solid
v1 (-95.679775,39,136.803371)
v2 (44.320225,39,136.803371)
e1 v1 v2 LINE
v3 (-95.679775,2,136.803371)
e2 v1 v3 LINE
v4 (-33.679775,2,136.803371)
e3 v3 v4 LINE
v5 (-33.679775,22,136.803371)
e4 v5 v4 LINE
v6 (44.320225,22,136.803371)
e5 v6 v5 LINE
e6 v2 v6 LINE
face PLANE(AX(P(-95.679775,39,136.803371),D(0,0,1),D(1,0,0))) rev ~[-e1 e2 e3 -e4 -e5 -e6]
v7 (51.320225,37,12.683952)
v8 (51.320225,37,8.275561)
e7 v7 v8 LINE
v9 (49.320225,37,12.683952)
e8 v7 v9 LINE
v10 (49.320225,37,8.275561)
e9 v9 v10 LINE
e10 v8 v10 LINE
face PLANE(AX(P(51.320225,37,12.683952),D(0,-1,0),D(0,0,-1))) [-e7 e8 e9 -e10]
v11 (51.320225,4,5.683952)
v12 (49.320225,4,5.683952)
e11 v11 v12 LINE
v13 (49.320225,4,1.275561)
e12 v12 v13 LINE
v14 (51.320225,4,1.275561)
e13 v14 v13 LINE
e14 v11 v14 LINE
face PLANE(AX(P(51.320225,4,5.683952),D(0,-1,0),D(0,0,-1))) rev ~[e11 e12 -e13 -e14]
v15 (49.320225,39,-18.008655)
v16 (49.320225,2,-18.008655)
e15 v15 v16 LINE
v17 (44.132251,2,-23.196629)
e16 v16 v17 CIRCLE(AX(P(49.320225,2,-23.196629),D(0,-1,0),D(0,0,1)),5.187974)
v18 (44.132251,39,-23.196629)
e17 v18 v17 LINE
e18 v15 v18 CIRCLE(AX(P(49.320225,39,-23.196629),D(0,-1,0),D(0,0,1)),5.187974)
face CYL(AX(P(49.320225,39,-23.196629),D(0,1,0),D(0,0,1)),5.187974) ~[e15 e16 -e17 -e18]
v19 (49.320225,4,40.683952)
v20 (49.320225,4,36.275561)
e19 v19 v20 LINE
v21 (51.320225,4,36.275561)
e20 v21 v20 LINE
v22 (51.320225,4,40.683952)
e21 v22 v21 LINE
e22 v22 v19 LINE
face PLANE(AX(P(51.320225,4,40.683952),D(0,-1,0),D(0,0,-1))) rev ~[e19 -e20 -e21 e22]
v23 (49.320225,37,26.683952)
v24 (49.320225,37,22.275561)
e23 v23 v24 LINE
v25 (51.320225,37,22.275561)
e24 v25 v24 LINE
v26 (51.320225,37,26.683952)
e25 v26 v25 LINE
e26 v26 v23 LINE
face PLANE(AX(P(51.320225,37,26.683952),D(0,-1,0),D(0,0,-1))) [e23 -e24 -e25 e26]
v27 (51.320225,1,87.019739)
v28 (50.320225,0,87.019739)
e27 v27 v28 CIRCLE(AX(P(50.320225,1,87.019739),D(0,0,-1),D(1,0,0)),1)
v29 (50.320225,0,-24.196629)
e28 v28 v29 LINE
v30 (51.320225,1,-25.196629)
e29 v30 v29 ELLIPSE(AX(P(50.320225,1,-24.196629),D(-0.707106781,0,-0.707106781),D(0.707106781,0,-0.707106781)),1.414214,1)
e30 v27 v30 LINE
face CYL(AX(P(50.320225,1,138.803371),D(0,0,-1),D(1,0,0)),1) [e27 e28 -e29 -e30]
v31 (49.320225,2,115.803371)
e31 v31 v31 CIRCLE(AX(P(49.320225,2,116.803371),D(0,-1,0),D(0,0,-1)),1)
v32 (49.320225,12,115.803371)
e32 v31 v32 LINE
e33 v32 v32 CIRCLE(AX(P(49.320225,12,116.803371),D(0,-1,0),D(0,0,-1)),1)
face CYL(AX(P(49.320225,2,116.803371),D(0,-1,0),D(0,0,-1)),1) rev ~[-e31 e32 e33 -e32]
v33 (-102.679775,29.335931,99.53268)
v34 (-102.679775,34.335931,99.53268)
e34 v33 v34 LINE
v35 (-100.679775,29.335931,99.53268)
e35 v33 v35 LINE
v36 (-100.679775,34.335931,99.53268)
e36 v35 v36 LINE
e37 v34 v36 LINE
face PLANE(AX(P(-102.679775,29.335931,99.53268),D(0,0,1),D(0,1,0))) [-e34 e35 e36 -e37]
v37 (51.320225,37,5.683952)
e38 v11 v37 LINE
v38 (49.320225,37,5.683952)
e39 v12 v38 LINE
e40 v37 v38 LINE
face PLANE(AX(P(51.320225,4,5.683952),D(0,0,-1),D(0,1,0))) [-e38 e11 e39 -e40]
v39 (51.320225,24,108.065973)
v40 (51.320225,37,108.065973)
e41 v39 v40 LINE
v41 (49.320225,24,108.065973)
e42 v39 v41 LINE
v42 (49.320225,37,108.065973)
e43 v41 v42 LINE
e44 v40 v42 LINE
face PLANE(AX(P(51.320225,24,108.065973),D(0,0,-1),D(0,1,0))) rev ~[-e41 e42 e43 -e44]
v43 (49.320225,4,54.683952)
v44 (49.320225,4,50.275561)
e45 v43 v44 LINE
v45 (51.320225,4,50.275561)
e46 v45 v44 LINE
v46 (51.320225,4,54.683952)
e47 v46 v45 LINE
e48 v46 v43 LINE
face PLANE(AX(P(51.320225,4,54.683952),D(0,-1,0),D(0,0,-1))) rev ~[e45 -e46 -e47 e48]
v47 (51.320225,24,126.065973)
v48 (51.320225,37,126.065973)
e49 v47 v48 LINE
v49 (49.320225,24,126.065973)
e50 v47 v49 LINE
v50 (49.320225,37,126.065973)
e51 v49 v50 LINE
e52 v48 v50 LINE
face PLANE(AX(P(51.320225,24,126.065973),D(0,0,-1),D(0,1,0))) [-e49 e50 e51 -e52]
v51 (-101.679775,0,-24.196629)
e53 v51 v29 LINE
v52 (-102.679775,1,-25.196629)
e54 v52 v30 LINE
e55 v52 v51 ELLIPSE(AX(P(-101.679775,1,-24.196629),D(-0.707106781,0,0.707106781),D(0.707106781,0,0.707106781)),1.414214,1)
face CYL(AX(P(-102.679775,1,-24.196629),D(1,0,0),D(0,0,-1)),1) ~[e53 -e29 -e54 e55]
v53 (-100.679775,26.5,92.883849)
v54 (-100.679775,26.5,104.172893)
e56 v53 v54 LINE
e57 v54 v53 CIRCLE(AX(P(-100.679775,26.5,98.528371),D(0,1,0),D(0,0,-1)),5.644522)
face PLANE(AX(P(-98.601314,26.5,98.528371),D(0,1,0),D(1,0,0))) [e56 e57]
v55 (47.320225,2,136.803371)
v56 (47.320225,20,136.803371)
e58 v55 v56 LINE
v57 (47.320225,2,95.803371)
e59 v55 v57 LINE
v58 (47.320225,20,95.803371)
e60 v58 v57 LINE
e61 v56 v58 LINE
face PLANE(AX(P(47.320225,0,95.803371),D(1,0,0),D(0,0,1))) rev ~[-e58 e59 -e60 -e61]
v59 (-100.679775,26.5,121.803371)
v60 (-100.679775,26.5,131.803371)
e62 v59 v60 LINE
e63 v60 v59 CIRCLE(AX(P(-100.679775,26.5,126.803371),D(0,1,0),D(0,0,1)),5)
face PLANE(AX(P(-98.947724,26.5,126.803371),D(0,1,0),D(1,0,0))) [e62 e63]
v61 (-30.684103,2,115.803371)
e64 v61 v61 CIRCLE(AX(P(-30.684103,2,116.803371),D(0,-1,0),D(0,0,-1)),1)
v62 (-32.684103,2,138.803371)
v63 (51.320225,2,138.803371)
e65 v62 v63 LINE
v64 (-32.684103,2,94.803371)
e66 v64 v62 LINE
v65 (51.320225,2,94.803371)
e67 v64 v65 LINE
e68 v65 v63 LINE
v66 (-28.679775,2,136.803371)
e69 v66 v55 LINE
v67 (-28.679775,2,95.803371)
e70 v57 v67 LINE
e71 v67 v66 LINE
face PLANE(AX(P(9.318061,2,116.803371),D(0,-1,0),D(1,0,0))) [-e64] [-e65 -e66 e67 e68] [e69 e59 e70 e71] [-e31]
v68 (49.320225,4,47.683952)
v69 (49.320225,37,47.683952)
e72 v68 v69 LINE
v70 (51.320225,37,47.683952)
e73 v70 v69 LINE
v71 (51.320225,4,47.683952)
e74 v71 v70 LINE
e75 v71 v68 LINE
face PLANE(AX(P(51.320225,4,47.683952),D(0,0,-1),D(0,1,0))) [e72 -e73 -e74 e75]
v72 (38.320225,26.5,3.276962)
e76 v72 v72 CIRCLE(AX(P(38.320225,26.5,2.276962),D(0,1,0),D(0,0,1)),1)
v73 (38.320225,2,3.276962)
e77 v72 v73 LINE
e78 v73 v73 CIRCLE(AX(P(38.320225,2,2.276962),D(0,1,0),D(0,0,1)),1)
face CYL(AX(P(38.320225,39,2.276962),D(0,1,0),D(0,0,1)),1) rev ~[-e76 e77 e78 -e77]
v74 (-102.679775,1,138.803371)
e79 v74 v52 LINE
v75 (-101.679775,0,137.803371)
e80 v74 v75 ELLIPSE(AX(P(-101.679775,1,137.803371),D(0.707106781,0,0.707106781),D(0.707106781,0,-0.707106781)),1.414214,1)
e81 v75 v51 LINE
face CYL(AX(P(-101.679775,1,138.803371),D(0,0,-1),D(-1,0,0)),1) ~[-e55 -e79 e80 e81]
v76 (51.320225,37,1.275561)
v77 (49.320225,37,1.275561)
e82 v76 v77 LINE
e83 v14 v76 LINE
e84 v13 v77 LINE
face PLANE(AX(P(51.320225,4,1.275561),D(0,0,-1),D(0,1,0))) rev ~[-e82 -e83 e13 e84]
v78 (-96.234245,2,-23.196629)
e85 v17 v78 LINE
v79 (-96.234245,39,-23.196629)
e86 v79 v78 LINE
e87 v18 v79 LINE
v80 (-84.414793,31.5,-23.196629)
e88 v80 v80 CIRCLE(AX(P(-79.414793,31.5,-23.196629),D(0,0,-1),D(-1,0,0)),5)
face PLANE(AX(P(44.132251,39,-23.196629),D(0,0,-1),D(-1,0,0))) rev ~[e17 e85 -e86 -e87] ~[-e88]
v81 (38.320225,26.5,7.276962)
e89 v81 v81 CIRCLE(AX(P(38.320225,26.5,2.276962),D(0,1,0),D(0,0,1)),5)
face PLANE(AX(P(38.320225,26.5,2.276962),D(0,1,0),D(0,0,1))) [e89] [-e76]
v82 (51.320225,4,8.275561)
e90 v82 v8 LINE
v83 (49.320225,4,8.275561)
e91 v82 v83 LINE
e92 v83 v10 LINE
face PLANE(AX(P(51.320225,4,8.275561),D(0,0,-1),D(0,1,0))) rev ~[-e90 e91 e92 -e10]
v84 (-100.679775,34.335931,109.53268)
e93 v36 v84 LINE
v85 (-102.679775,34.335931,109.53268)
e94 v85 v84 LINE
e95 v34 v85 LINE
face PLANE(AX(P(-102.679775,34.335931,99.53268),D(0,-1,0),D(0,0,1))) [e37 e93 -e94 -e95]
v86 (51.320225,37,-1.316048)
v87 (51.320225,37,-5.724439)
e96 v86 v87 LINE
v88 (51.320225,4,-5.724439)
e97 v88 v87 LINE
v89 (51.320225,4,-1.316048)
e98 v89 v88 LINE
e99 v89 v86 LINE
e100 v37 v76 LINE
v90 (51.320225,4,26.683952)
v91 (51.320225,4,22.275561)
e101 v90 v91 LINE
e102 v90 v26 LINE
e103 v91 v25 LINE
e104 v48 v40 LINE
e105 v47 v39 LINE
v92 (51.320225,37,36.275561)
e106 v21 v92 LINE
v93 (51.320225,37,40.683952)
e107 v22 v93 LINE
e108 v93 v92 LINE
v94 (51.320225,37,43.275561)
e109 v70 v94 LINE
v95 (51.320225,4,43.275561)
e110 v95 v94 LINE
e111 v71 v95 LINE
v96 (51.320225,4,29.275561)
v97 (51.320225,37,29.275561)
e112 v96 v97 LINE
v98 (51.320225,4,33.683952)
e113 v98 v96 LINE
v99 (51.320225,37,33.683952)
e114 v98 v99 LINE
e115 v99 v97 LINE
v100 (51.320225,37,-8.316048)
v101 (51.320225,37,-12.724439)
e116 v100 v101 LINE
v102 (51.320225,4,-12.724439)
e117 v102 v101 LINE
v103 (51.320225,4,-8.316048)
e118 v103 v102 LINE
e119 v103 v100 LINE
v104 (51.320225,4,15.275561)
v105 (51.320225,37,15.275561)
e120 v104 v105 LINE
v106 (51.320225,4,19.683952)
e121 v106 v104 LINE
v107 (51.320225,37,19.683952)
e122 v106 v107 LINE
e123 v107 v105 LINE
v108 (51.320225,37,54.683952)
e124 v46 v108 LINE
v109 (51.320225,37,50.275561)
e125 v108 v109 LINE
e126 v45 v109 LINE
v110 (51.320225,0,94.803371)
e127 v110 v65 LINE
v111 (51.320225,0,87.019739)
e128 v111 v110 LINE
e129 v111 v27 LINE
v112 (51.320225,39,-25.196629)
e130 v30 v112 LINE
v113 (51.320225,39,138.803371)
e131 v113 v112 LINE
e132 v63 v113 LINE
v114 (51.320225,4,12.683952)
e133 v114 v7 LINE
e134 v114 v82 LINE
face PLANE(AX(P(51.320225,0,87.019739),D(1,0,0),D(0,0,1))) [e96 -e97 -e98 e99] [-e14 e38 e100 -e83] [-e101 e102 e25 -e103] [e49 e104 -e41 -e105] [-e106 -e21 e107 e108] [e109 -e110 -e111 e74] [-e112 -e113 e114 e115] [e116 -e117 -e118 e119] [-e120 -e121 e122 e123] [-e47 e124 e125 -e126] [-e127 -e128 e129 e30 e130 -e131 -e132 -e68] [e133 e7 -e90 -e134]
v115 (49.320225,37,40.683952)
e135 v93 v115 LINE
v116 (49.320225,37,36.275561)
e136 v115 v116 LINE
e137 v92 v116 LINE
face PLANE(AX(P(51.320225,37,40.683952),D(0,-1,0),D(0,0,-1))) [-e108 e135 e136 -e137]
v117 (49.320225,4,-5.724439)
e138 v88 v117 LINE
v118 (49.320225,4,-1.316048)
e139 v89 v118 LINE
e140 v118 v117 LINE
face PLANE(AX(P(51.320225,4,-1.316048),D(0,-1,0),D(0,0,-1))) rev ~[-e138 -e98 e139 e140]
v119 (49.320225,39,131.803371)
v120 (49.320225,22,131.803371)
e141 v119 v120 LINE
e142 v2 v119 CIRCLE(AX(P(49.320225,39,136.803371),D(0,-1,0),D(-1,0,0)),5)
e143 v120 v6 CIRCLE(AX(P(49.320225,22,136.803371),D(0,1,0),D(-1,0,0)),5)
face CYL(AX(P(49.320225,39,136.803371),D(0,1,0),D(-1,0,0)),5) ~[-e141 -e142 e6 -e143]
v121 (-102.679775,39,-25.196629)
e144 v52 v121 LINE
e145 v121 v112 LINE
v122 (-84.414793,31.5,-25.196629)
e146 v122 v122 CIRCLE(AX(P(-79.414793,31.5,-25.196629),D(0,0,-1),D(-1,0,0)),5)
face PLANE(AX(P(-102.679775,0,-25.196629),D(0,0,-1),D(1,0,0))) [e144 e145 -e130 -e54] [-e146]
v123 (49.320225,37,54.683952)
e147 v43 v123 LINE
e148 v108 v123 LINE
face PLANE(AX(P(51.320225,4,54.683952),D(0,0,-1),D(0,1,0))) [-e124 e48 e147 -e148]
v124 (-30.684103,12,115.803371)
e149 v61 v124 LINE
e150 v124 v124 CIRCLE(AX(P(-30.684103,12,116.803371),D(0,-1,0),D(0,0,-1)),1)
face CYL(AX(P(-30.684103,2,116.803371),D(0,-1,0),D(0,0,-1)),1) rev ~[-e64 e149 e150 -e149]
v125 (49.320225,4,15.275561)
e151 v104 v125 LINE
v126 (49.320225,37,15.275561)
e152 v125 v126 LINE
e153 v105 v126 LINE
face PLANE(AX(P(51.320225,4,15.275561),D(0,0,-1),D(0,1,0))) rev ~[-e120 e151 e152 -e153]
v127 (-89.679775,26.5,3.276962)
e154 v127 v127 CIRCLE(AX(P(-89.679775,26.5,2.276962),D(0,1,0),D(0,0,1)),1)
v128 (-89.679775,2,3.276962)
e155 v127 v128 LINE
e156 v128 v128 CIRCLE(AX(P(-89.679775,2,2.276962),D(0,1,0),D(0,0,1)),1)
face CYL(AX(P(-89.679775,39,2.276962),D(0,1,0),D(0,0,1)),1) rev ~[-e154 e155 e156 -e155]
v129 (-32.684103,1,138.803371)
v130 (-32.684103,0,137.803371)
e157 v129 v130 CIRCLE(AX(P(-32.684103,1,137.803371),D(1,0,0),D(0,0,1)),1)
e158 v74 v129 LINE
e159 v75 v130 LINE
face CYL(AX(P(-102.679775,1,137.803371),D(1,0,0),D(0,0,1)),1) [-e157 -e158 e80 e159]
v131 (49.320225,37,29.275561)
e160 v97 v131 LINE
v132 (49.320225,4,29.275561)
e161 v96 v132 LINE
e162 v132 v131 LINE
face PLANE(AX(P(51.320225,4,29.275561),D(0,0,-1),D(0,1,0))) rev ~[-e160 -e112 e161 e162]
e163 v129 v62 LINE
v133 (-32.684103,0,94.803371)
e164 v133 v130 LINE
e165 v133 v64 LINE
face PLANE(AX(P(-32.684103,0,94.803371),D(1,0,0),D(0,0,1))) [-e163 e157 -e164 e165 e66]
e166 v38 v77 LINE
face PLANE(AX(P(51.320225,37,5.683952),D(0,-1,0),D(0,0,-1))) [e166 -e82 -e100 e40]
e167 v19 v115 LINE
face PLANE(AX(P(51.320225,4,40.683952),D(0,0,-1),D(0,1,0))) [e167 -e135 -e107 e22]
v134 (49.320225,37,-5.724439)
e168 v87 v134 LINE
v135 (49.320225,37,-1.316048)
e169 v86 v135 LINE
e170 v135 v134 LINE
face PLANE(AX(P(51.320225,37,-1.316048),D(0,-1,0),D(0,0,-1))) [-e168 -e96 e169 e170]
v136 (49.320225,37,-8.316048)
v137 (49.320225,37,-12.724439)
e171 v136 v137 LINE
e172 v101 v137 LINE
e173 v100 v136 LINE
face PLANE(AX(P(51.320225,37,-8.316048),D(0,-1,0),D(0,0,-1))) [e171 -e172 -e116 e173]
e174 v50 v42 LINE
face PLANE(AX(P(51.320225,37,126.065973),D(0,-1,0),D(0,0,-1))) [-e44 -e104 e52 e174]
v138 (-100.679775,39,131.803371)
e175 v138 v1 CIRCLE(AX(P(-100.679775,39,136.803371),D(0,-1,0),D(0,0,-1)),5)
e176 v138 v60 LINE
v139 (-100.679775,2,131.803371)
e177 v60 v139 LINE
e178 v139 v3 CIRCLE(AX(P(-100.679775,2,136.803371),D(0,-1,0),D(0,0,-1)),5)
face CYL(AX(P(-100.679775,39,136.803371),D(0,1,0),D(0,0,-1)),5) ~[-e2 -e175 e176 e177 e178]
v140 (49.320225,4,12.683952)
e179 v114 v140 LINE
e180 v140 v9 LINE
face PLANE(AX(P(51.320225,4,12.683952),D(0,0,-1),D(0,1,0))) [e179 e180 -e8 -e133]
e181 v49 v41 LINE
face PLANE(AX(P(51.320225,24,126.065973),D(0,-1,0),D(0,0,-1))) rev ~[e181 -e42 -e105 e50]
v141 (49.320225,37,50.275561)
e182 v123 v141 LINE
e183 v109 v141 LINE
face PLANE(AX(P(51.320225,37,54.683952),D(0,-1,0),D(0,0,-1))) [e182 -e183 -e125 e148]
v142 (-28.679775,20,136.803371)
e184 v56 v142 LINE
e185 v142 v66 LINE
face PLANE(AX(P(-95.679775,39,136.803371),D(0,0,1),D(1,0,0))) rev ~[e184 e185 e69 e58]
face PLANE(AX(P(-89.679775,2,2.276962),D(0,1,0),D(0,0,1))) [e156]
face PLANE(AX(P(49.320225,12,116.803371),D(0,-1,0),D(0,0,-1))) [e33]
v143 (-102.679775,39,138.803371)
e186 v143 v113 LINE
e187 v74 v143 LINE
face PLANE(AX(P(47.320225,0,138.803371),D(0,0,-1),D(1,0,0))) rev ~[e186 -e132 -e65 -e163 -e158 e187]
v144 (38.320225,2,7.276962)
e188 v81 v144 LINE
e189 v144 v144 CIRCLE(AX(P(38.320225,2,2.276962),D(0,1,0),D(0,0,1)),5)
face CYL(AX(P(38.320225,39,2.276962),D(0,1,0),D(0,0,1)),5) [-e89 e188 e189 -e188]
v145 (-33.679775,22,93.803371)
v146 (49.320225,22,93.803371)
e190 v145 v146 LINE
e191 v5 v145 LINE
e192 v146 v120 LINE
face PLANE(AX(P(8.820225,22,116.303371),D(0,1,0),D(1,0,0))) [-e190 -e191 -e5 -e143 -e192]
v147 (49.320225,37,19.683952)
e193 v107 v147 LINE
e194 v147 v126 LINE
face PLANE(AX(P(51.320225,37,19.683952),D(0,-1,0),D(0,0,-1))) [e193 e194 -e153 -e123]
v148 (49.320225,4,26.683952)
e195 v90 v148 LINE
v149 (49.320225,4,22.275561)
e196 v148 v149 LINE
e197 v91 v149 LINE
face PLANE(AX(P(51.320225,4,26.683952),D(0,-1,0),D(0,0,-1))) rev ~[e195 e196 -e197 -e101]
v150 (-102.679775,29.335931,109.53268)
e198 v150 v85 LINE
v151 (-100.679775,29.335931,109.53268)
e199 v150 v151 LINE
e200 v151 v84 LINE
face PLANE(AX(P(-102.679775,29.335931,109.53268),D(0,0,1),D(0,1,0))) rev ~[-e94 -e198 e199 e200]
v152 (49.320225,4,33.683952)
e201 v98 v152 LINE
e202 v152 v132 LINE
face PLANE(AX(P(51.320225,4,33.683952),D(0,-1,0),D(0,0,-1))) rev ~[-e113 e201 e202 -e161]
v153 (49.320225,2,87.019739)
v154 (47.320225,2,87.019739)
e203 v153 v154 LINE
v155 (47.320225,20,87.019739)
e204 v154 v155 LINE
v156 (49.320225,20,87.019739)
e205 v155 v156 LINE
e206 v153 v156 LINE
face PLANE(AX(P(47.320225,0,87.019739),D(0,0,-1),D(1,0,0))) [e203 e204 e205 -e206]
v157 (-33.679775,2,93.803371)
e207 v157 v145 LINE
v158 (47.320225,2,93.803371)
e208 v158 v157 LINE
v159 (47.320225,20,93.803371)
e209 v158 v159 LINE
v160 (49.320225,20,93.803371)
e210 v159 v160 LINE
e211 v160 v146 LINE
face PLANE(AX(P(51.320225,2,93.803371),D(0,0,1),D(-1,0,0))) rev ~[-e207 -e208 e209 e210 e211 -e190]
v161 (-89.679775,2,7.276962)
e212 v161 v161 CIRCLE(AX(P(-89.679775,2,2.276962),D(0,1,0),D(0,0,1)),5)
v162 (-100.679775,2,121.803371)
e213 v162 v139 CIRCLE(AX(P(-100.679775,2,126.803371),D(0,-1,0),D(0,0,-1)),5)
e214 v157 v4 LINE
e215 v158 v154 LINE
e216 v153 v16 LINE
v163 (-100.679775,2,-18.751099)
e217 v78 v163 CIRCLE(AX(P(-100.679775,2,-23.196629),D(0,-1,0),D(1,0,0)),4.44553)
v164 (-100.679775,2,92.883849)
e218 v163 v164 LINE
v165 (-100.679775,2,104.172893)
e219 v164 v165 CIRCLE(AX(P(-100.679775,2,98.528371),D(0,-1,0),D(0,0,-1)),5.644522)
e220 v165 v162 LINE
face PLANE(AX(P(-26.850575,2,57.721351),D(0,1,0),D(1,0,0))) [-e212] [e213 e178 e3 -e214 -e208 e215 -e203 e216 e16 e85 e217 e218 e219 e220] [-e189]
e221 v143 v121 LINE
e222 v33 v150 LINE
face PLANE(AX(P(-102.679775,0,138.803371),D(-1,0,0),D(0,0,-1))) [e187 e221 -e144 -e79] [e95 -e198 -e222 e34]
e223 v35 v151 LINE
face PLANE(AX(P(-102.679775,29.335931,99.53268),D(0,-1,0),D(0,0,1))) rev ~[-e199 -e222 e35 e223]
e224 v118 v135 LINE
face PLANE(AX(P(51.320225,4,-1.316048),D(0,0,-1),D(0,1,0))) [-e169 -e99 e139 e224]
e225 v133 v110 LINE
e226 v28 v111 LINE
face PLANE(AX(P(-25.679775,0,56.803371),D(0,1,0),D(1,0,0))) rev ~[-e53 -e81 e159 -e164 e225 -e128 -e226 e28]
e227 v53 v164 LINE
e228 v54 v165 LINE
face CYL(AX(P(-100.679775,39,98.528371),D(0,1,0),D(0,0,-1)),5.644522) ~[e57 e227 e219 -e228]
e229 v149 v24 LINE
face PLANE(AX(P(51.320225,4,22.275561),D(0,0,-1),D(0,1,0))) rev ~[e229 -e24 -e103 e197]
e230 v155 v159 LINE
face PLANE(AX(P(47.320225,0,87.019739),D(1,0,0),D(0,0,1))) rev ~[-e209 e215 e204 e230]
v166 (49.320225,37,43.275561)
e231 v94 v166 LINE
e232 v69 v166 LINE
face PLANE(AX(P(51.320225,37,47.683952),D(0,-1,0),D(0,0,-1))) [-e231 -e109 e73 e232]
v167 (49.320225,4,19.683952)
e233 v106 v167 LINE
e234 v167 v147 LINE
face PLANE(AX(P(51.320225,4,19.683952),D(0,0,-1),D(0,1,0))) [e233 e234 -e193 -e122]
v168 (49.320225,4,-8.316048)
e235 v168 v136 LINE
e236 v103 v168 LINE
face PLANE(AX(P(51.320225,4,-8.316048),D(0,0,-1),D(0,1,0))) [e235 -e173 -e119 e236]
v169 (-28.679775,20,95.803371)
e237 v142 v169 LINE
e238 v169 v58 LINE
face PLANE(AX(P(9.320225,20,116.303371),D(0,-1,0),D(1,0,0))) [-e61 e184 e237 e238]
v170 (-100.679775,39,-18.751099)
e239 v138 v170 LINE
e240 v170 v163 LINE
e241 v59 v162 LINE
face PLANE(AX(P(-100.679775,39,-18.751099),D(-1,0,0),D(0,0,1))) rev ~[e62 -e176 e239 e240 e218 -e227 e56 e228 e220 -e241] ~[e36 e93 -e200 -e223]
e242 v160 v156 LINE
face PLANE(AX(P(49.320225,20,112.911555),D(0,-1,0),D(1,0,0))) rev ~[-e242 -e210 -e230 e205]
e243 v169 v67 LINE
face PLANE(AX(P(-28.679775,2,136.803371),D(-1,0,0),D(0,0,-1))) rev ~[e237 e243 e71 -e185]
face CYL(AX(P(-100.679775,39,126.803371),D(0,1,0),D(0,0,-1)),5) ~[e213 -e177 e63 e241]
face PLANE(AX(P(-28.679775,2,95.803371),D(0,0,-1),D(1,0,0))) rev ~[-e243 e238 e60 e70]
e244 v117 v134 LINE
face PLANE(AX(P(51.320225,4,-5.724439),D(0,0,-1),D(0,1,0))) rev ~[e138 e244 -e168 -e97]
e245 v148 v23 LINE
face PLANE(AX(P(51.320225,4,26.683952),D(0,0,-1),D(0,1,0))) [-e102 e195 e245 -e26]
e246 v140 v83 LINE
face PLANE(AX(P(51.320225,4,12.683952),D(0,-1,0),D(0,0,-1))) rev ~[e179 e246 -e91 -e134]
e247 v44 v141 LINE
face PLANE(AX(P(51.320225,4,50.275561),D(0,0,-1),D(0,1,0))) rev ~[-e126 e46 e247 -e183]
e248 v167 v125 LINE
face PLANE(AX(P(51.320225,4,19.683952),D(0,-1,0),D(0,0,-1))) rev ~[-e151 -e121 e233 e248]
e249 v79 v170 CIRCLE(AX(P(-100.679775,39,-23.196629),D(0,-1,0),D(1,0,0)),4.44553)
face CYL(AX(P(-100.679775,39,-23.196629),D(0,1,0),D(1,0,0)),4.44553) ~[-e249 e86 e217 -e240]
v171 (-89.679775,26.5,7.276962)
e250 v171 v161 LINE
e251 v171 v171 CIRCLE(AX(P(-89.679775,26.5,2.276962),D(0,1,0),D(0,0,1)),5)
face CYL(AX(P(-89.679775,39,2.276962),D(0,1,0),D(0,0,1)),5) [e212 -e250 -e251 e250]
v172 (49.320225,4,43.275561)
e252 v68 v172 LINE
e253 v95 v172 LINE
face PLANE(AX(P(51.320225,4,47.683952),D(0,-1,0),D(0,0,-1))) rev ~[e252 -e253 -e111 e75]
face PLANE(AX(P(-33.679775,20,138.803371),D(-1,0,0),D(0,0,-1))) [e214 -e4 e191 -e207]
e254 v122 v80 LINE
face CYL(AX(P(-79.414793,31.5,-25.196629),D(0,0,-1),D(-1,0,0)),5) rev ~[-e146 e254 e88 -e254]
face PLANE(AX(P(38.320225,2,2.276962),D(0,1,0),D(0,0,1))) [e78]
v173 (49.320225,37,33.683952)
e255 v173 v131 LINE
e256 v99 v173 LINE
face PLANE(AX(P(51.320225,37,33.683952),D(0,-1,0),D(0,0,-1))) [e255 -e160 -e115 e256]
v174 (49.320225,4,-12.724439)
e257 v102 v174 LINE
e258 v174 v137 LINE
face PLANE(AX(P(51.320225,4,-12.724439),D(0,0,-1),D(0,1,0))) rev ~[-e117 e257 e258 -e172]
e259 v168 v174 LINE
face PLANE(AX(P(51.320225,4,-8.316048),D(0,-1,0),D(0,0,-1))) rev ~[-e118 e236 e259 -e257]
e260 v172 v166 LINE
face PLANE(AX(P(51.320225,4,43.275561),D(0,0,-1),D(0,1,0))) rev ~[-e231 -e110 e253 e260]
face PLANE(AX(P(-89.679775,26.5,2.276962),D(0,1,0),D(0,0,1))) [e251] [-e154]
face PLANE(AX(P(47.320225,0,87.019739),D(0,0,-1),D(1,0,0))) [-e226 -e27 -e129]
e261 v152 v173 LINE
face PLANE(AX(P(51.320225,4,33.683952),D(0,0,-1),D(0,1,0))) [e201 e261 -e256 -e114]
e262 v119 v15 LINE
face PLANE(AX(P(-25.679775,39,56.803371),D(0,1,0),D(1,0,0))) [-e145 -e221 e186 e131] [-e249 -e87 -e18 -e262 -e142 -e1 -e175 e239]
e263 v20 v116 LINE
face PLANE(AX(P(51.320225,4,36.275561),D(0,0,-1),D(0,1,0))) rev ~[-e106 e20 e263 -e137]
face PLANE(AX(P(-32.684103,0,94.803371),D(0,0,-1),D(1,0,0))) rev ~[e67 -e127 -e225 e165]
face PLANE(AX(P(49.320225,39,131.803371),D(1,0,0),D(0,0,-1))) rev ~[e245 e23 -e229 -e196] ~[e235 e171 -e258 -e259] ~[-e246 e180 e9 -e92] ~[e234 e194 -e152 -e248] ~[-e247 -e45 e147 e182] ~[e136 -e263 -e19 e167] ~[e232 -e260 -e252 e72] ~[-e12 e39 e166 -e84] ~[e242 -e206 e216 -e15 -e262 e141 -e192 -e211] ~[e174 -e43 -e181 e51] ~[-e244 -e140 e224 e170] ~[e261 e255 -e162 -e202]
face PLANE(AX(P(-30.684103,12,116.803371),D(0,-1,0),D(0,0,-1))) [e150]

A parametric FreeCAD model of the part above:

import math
import FreeCAD as App
import Part
import Sketcher
from FreeCAD import Vector
Q = App.Units.Quantity


def edges_at(feature, points):
    """Names of the edges that pass closest to the given points."""
    edges = feature.Shape.Edges
    near = lambda p: min(range(len(edges)), key=lambda i: edges[i].distToShape(Part.Vertex(*p))[0])
    return sorted({f"Edge{near(p) + 1}" for p in points})


def add_polygon(sketch, points):
    """Adds a closed chain of lines whose ends are joined by coincident constraints."""
    first, n = sketch.GeometryCount, len(points)
    for a, b in zip(points, points[1:] + points[:1]):
        sketch.addGeometry(Part.LineSegment(App.Vector(*a, 0), App.Vector(*b, 0)), False)
    for i in range(n):
        sketch.addConstraint(Sketcher.Constraint("Coincident", first + i, 2, first + (i + 1) % n, 1))

doc = App.newDocument("Part")
body = doc.addObject("PartDesign::Body", "Body")

# Sketch on XZ plane
sketch1 = body.newObject("Sketcher::SketchObject", "Sketch")
sketch1.AttachmentSupport = (doc.getObject("XZ_Plane"), [""])
sketch1.MapMode = "FlatFace"
add_polygon(sketch1, [(-102.679775, -25.196629), (-102.679775, 138.803371), (51.320225, 138.803371), (51.320225, -25.196629)])  # lines 0-3
sketch1.addConstraint(Sketcher.Constraint("Vertical", 0))
sketch1.addConstraint(Sketcher.Constraint("Horizontal", 1))
sketch1.addConstraint(Sketcher.Constraint("Vertical", 2))
sketch1.addConstraint(Sketcher.Constraint("Horizontal", 3))
sketch1.addConstraint(Sketcher.Constraint("DistanceX", 1, 1, 1, 2, Q("154 mm")))
sketch1.addConstraint(Sketcher.Constraint("DistanceY", 0, 1, 0, 2, Q("164 mm")))
sketch1.addConstraint(Sketcher.Constraint("DistanceY", -1, 1, 0, 2, Q("138.803371 mm")))
sketch1.addConstraint(Sketcher.Constraint("DistanceX", 0, 2, -1, 1, Q("102.679775 mm")))
pad1 = body.newObject("PartDesign::Pad", "Pad")
pad1.Profile = sketch1
pad1.Length = 39
pad1.Reversed = True
doc.recompute()

fillet = body.newObject("PartDesign::Fillet", "Fillet")
fillet.Base = (pad1, edges_at(pad1, [
    (-25.68, 0, -25.197),
    (51.32, 0, 56.803),
    (-25.68, 0, 138.803),
    (-102.68, 0, 56.803),
]))
fillet.Radius = 1

# Sketch on XZ plane
sketch2 = body.newObject("Sketcher::SketchObject", "Sketch001")
sketch2.AttachmentSupport = (doc.getObject("XZ_Plane"), [""])
sketch2.MapMode = "FlatFace"
sketch2.AttachmentOffset = App.Placement(Vector(0, 0, -39), App.Rotation())
sketch2.addGeometry(Part.LineSegment(Vector(44.132251, -23.196629, 0), Vector(-96.234245, -23.196629, 0)), False)
sketch2.addGeometry(Part.ArcOfCircle(Part.Circle(Vector(-100.679775, -23.196629, 0), Vector(0, 0, 1), 4.44553), math.radians(0), math.radians(90)), False)
sketch2.addGeometry(Part.LineSegment(Vector(-100.679775, -18.751099, 0), Vector(-100.679775, 92.883849, 0)), False)
sketch2.addGeometry(Part.ArcOfCircle(Part.Circle(Vector(-100.679775, 98.528371, 0), Vector(0, 0, 1), 5.644522), math.radians(-90), math.radians(90)), False)
sketch2.addGeometry(Part.LineSegment(Vector(-100.679775, 104.172893, 0), Vector(-100.679775, 121.803371, 0)), False)
sketch2.addGeometry(Part.ArcOfCircle(Part.Circle(Vector(-100.679775, 126.803371, 0), Vector(0, 0, 1), 5), math.radians(-90), math.radians(90)), False)
sketch2.addGeometry(Part.ArcOfCircle(Part.Circle(Vector(-100.679775, 136.803371, 0), Vector(0, 0, 1), 5), math.radians(-90), math.radians(0)), False)
sketch2.addGeometry(Part.LineSegment(Vector(-95.679775, 136.803371, 0), Vector(44.320225, 136.803371, 0)), False)
sketch2.addGeometry(Part.ArcOfCircle(Part.Circle(Vector(49.320225, 136.803371, 0), Vector(0, 0, 1), 5), math.radians(180), math.radians(270)), False)
sketch2.addGeometry(Part.LineSegment(Vector(49.320225, 131.803371, 0), Vector(49.320225, -18.008655, 0)), False)
sketch2.addGeometry(Part.ArcOfCircle(Part.Circle(Vector(49.320225, -23.196629, 0), Vector(0, 0, 1), 5.187974), math.radians(90), math.radians(180)), False)
sketch2.addGeometry(Part.Circle(Vector(-89.679775, 2.276962, 0), Vector(0, 0, 1), 5), False)
sketch2.addGeometry(Part.Circle(Vector(38.320225, 2.276962, 0), Vector(0, 0, 1), 5), False)
sketch2.addGeometry(Part.Circle(Vector(-89.679775, 2.276962, 0), Vector(0, 0, 1), 1), False)
sketch2.addGeometry(Part.Circle(Vector(38.320225, 2.276962, 0), Vector(0, 0, 1), 1), False)
sketch2.addConstraint(Sketcher.Constraint("Coincident", 0, 2, 1, 1))
sketch2.addConstraint(Sketcher.Constraint("Coincident", 1, 2, 2, 1))
sketch2.addConstraint(Sketcher.Constraint("Coincident", 2, 2, 3, 1))
sketch2.addConstraint(Sketcher.Constraint("Coincident", 3, 2, 4, 1))
sketch2.addConstraint(Sketcher.Constraint("Coincident", 4, 2, 5, 1))
sketch2.addConstraint(Sketcher.Constraint("Tangent", 5, 2, 6, 1))
sketch2.addConstraint(Sketcher.Constraint("Coincident", 6, 2, 7, 1))
sketch2.addConstraint(Sketcher.Constraint("Coincident", 7, 2, 8, 1))
sketch2.addConstraint(Sketcher.Constraint("Coincident", 8, 2, 9, 1))
sketch2.addConstraint(Sketcher.Constraint("Coincident", 9, 2, 10, 1))
sketch2.addConstraint(Sketcher.Constraint("Coincident", 10, 2, 0, 1))
sketch2.addConstraint(Sketcher.Constraint("Horizontal", 0))
sketch2.addConstraint(Sketcher.Constraint("Vertical", 2))
sketch2.addConstraint(Sketcher.Constraint("Vertical", 4))
sketch2.addConstraint(Sketcher.Constraint("Horizontal", 7))
sketch2.addConstraint(Sketcher.Constraint("Vertical", 9))
sketch2.addConstraint(Sketcher.Constraint("Coincident", 13, 3, 11, 3))
sketch2.addConstraint(Sketcher.Constraint("Coincident", 14, 3, 12, 3))
sketch2.addConstraint(Sketcher.Constraint("Equal", 5, 6))
sketch2.addConstraint(Sketcher.Constraint("Equal", 6, 8))
sketch2.addConstraint(Sketcher.Constraint("Equal", 8, 11))
sketch2.addConstraint(Sketcher.Constraint("Equal", 11, 12))
sketch2.addConstraint(Sketcher.Constraint("Equal", 13, 14))
sketch2.addConstraint(Sketcher.Constraint("Horizontal", 6, 3, 8, 3))
sketch2.addConstraint(Sketcher.Constraint("Horizontal", 1, 3, 10, 3))
sketch2.addConstraint(Sketcher.Constraint("Horizontal", 11, 3, 12, 3))
sketch2.addConstraint(Sketcher.Constraint("Horizontal", 10, 3, 0, 2))
sketch2.addConstraint(Sketcher.Constraint("Horizontal", 8, 3, 6, 2))
sketch2.addConstraint(Sketcher.Constraint("Vertical", 1, 3, 3, 3))
sketch2.addConstraint(Sketcher.Constraint("Vertical", 3, 3, 5, 3))
sketch2.addConstraint(Sketcher.Constraint("Vertical", 5, 3, 6, 3))
sketch2.addConstraint(Sketcher.Constraint("Vertical", 8, 3, 10, 3))
sketch2.addConstraint(Sketcher.Constraint("Vertical", 6, 3, 1, 2))
sketch2.addConstraint(Sketcher.Constraint("Vertical", 2, 2, 3, 2))
sketch2.addConstraint(Sketcher.Constraint("Vertical", 10, 3, 8, 2))
sketch2.addConstraint(Sketcher.Constraint("Diameter", 11, Q("10 mm")))
sketch2.addConstraint(Sketcher.Constraint("Diameter", 13, Q("2 mm")))
sketch2.addConstraint(Sketcher.Constraint("DistanceX", 7, 1, 7, 2, Q("140 mm")))
sketch2.addConstraint(Sketcher.Constraint("DistanceY", 1, 3, 5, 3, Q("150 mm")))
sketch2.addConstraint(Sketcher.Constraint("DistanceX", 1, 3, 11, 3, Q("11 mm")))
sketch2.addConstraint(Sketcher.Constraint("DistanceX", 12, 3, 10, 3, Q("11 mm")))
sketch2.addConstraint(Sketcher.Constraint("Radius", 1, Q("4.44553 mm")))
sketch2.addConstraint(Sketcher.Constraint("Radius", 3, Q("5.644522 mm")))
sketch2.addConstraint(Sketcher.Constraint("Radius", 10, Q("5.187974 mm")))
sketch2.addConstraint(Sketcher.Constraint("DistanceY", 1, 3, 3, 3, Q("121.725 mm")))
sketch2.addConstraint(Sketcher.Constraint("DistanceY", 1, 2, -1, 1, Q("18.751099 mm")))
sketch2.addConstraint(Sketcher.Constraint("DistanceY", -1, 1, 11, 3, Q("2.276962 mm")))
sketch2.addConstraint(Sketcher.Constraint("DistanceX", -1, 1, 10, 2, Q("44.132251 mm")))
pocket1 = body.newObject("PartDesign::Pocket", "Pocket")
pocket1.Profile = sketch2
pocket1.Length = 37
pocket1.Reversed = True

# Sketch on XZ plane
sketch3 = body.newObject("Sketcher::SketchObject", "Sketch002")
sketch3.AttachmentSupport = (doc.getObject("XZ_Plane"), [""])
sketch3.MapMode = "FlatFace"
sketch3.AttachmentOffset = App.Placement(Vector(0, 0, -39), App.Rotation())
sketch3.addGeometry(Part.Circle(Vector(-89.679775, 2.276962, 0), Vector(0, 0, 1), 5), False)
sketch3.addGeometry(Part.Circle(Vector(38.320225, 2.276962, 0), Vector(0, 0, 1), 5), False)
sketch3.addGeometry(Part.LineSegment(Vector(-100.679775, 92.528371, 0), Vector(-100.679775, 104.528371, 0)), False)
sketch3.addGeometry(Part.ArcOfCircle(Part.Circle(Vector(-100.679775, 98.528371, 0), Vector(0, 0, 1), 6), math.radians(-90), math.radians(90)), False)
sketch3.addGeometry(Part.LineSegment(Vector(-100.679775, 121.803371, 0), Vector(-100.679775, 131.803371, 0)), False)
sketch3.addGeometry(Part.ArcOfCircle(Part.Circle(Vector(-100.679775, 126.803371, 0), Vector(0, 0, 1), 5), math.radians(-90), math.radians(90)), False)
sketch3.addConstraint(Sketcher.Constraint("Coincident", 2, 1, 3, 1))
sketch3.addConstraint(Sketcher.Constraint("Coincident", 3, 2, 2, 2))
sketch3.addConstraint(Sketcher.Constraint("Coincident", 4, 1, 5, 1))
sketch3.addConstraint(Sketcher.Constraint("Coincident", 5, 2, 4, 2))
sketch3.addConstraint(Sketcher.Constraint("Vertical", 2))
sketch3.addConstraint(Sketcher.Constraint("Vertical", 4))
sketch3.addConstraint(Sketcher.Constraint("Equal", 0, 1))
sketch3.addConstraint(Sketcher.Constraint("Equal", 1, 5))
sketch3.addConstraint(Sketcher.Constraint("Horizontal", 0, 3, 1, 3))
sketch3.addConstraint(Sketcher.Constraint("Vertical", 3, 3, 5, 3))
sketch3.addConstraint(Sketcher.Constraint("Vertical", 5, 3, 2, 1))
sketch3.addConstraint(Sketcher.Constraint("Vertical", 3, 2, 4, 1))
sketch3.addConstraint(Sketcher.Constraint("Diameter", 0, Q("10 mm")))
sketch3.addConstraint(Sketcher.Constraint("Radius", 3, Q("6 mm")))
sketch3.addConstraint(Sketcher.Constraint("DistanceX", 0, 3, 1, 3, Q("128 mm")))
sketch3.addConstraint(Sketcher.Constraint("DistanceX", 3, 3, 0, 3, Q("11 mm")))
sketch3.addConstraint(Sketcher.Constraint("DistanceY", 3, 3, 5, 3, Q("28.275 mm")))
sketch3.addConstraint(Sketcher.Constraint("DistanceY", -1, 1, 0, 3, Q("2.276962 mm")))
sketch3.addConstraint(Sketcher.Constraint("DistanceY", -1, 1, 3, 3, Q("98.528371 mm")))
sketch3.addConstraint(Sketcher.Constraint("DistanceX", 0, 3, -1, 1, Q("89.679775 mm")))
pocket2 = body.newObject("PartDesign::Pocket", "Pocket001")
pocket2.Profile = sketch3
pocket2.Type = "TwoLengths"
pocket2.Length = 178.004271
pocket2.Length2 = 12.5

# Sketch on XZ plane
sketch4 = body.newObject("Sketcher::SketchObject", "Sketch003")
sketch4.AttachmentSupport = (doc.getObject("XZ_Plane"), [""])
sketch4.MapMode = "FlatFace"
add_polygon(sketch4, [(-28.679775, 136.803371), (-28.679775, 95.803371), (47.320225, 95.803371), (47.320225, 136.803371)])  # lines 0-3
sketch4.addConstraint(Sketcher.Constraint("Vertical", 0))
sketch4.addConstraint(Sketcher.Constraint("Horizontal", 1))
sketch4.addConstraint(Sketcher.Constraint("Vertical", 2))
sketch4.addConstraint(Sketcher.Constraint("Horizontal", 3))
sketch4.addConstraint(Sketcher.Constraint("DistanceX", 1, 1, 1, 2, Q("76 mm")))
sketch4.addConstraint(Sketcher.Constraint("DistanceY", 0, 2, 0, 1, Q("41 mm")))
sketch4.addConstraint(Sketcher.Constraint("DistanceY", -1, 1, 0, 2, Q("95.803371 mm")))
sketch4.addConstraint(Sketcher.Constraint("DistanceX", 0, 2, -1, 1, Q("28.679775 mm")))
pocket3 = body.newObject("PartDesign::Pocket", "Pocket002")
pocket3.Profile = sketch4
pocket3.Length = 20

# Sketch on XZ plane
sketch5 = body.newObject("Sketcher::SketchObject", "Sketch004")
sketch5.AttachmentSupport = (doc.getObject("XZ_Plane"), [""])
sketch5.MapMode = "FlatFace"
sketch5.AttachmentOffset = App.Placement(Vector(0, 0, -2), App.Rotation())
add_polygon(sketch5, [(-28.679775, 95.803371), (51.320225, 95.803371), (51.320225, 93.803371), (-33.679775, 93.803371), (-33.679775, 136.803371), (-28.679775, 136.803371)])  # lines 0-5
sketch5.addConstraint(Sketcher.Constraint("Horizontal", 0))
sketch5.addConstraint(Sketcher.Constraint("Vertical", 1))
sketch5.addConstraint(Sketcher.Constraint("Horizontal", 2))
sketch5.addConstraint(Sketcher.Constraint("Vertical", 3))
sketch5.addConstraint(Sketcher.Constraint("Horizontal", 4))
sketch5.addConstraint(Sketcher.Constraint("Vertical", 5))
sketch5.addConstraint(Sketcher.Constraint("DistanceX", 0, 1, 0, 2, Q("80 mm")))
sketch5.addConstraint(Sketcher.Constraint("DistanceX", 2, 2, 2, 1, Q("85 mm")))
sketch5.addConstraint(Sketcher.Constraint("DistanceY", 1, 2, 1, 1, Q("2 mm")))
sketch5.addConstraint(Sketcher.Constraint("DistanceY", 3, 1, 3, 2, Q("43 mm")))
sketch5.addConstraint(Sketcher.Constraint("DistanceY", -1, 1, 0, 2, Q("95.803371 mm")))
sketch5.addConstraint(Sketcher.Constraint("DistanceX", -1, 1, 0, 2, Q("51.320225 mm")))
pad2 = body.newObject("PartDesign::Pad", "Pad001")
pad2.Profile = sketch5
pad2.Length = 18
pad2.Reversed = True

# Sketch on XZ plane
sketch6 = body.newObject("Sketcher::SketchObject", "Sketch005")
sketch6.AttachmentSupport = (doc.getObject("XZ_Plane"), [""])
sketch6.MapMode = "FlatFace"
sketch6.AttachmentOffset = App.Placement(Vector(0, 0, -20), App.Rotation())
add_polygon(sketch6, [(-33.679775, 93.803371), (-33.679775, 138.803371), (51.320225, 138.803371), (51.320225, 93.803371)])  # lines 0-3
sketch6.addConstraint(Sketcher.Constraint("Vertical", 0))
sketch6.addConstraint(Sketcher.Constraint("Horizontal", 1))
sketch6.addConstraint(Sketcher.Constraint("Vertical", 2))
sketch6.addConstraint(Sketcher.Constraint("Horizontal", 3))
sketch6.addConstraint(Sketcher.Constraint("DistanceX", 1, 1, 1, 2, Q("85 mm")))
sketch6.addConstraint(Sketcher.Constraint("DistanceY", 0, 1, 0, 2, Q("45 mm")))
sketch6.addConstraint(Sketcher.Constraint("DistanceY", -1, 1, 0, 2, Q("138.803371 mm")))
sketch6.addConstraint(Sketcher.Constraint("DistanceX", 0, 2, -1, 1, Q("33.679775 mm")))
pad3 = body.newObject("PartDesign::Pad", "Pad002")
pad3.Profile = sketch6
pad3.Length = 2
pad3.Reversed = True

# Sketch on YZ plane
sketch7 = body.newObject("Sketcher::SketchObject", "Sketch006")
sketch7.AttachmentSupport = (doc.getObject("YZ_Plane"), [""])
sketch7.MapMode = "FlatFace"
sketch7.AttachmentOffset = App.Placement(Vector(0, 0, 51.320225), App.Rotation())
add_polygon(sketch7, [(37, 126.065973), (24, 126.065973), (24, 108.065973), (37, 108.065973)])  # lines 0-3
sketch7.addConstraint(Sketcher.Constraint("Horizontal", 0))
sketch7.addConstraint(Sketcher.Constraint("Vertical", 1))
sketch7.addConstraint(Sketcher.Constraint("Horizontal", 2))
sketch7.addConstraint(Sketcher.Constraint("Vertical", 3))
sketch7.addConstraint(Sketcher.Constraint("DistanceX", 0, 2, 0, 1, Q("13 mm")))
sketch7.addConstraint(Sketcher.Constraint("DistanceY", 1, 2, 1, 1, Q("18 mm")))
sketch7.addConstraint(Sketcher.Constraint("DistanceX", -1, 1, 0, 2, Q("24 mm")))
sketch7.addConstraint(Sketcher.Constraint("DistanceY", -1, 1, 0, 2, Q("126.065973 mm")))
pocket4 = body.newObject("PartDesign::Pocket", "Pocket003")
pocket4.Profile = sketch7
pocket4.Length = 3

# Sketch on XZ plane
sketch8 = body.newObject("Sketcher::SketchObject", "Sketch007")
sketch8.AttachmentSupport = (doc.getObject("XZ_Plane"), [""])
sketch8.MapMode = "FlatFace"
add_polygon(sketch8, [(47.320225, 138.803371), (47.320225, 87.019739), (51.320225, 87.019739), (51.320225, 138.803371)])  # lines 0-3
sketch8.addConstraint(Sketcher.Constraint("Vertical", 0))
sketch8.addConstraint(Sketcher.Constraint("Horizontal", 1))
sketch8.addConstraint(Sketcher.Constraint("Vertical", 2))
sketch8.addConstraint(Sketcher.Constraint("Horizontal", 3))
sketch8.addConstraint(Sketcher.Constraint("DistanceX", 1, 1, 1, 2, Q("4 mm")))
sketch8.addConstraint(Sketcher.Constraint("DistanceY", 0, 2, 0, 1, Q("51.783632 mm")))
sketch8.addConstraint(Sketcher.Constraint("DistanceY", -1, 1, 0, 2, Q("87.019739 mm")))
sketch8.addConstraint(Sketcher.Constraint("DistanceX", -1, 1, 0, 2, Q("47.320225 mm")))
pad4 = body.newObject("PartDesign::Pad", "Pad003")
pad4.Profile = sketch8
pad4.Length = 20
pad4.Reversed = True

# Sketch on XZ plane
sketch9 = body.newObject("Sketcher::SketchObject", "Sketch008")
sketch9.AttachmentSupport = (doc.getObject("XZ_Plane"), [""])
sketch9.MapMode = "FlatFace"
add_polygon(sketch9, [(-32.684103, 138.803371), (-32.684103, 94.803371), (51.320225, 94.803371), (51.320225, 138.803371)])  # lines 0-3
sketch9.addConstraint(Sketcher.Constraint("Vertical", 0))
sketch9.addConstraint(Sketcher.Constraint("Horizontal", 1))
sketch9.addConstraint(Sketcher.Constraint("Vertical", 2))
sketch9.addConstraint(Sketcher.Constraint("Horizontal", 3))
sketch9.addConstraint(Sketcher.Constraint("DistanceY", 0, 2, 0, 1, Q("44 mm")))
sketch9.addConstraint(Sketcher.Constraint("DistanceX", 1, 1, 1, 2, Q("84.004328 mm")))
sketch9.addConstraint(Sketcher.Constraint("DistanceY", -1, 1, 0, 2, Q("94.803371 mm")))
sketch9.addConstraint(Sketcher.Constraint("DistanceX", 0, 2, -1, 1, Q("32.684103 mm")))
pocket5 = body.newObject("PartDesign::Pocket", "Pocket004")
pocket5.Profile = sketch9
pocket5.Length = 2

# Sketch on YZ plane
sketch10 = body.newObject("Sketcher::SketchObject", "Sketch009")
sketch10.AttachmentSupport = (doc.getObject("YZ_Plane"), [""])
sketch10.MapMode = "FlatFace"
sketch10.AttachmentOffset = App.Placement(Vector(0, 0, 51.320225), App.Rotation())
add_polygon(sketch10, [(37, 54.683952), (4, 54.683952), (4, 50.275561), (37, 50.275561)])  # lines 0-3
add_polygon(sketch10, [(37, 47.683952), (4, 47.683952), (4, 43.275561), (37, 43.275561)])  # lines 4-7
add_polygon(sketch10, [(37, 40.683952), (4, 40.683952), (4, 36.275561), (37, 36.275561)])  # lines 8-11
add_polygon(sketch10, [(37, 33.683952), (4, 33.683952), (4, 29.275561), (37, 29.275561)])  # lines 12-15
add_polygon(sketch10, [(37, 26.683952), (4, 26.683952), (4, 22.275561), (37, 22.275561)])  # lines 16-19
add_polygon(sketch10, [(37, 19.683952), (4, 19.683952), (4, 15.275561), (37, 15.275561)])  # lines 20-23
add_polygon(sketch10, [(37, 12.683952), (4, 12.683952), (4, 8.275561), (37, 8.275561)])  # lines 24-27
add_polygon(sketch10, [(37, 5.683952), (4, 5.683952), (4, 1.275561), (37, 1.275561)])  # lines 28-31
add_polygon(sketch10, [(37, -1.316048), (4, -1.316048), (4, -5.724439), (37, -5.724439)])  # lines 32-35
add_polygon(sketch10, [(37, -8.316048), (4, -8.316048), (4, -12.724439), (37, -12.724439)])  # lines 36-39
sketch10.addConstraint(Sketcher.Constraint("Horizontal", 0))
sketch10.addConstraint(Sketcher.Constraint("Vertical", 1))
sketch10.addConstraint(Sketcher.Constraint("Horizontal", 2))
sketch10.addConstraint(Sketcher.Constraint("Vertical", 3))
sketch10.addConstraint(Sketcher.Constraint("Horizontal", 4))
sketch10.addConstraint(Sketcher.Constraint("Vertical", 5))
sketch10.addConstraint(Sketcher.Constraint("Horizontal", 6))
sketch10.addConstraint(Sketcher.Constraint("Vertical", 7))
sketch10.addConstraint(Sketcher.Constraint("Horizontal", 8))
sketch10.addConstraint(Sketcher.Constraint("Vertical", 9))
sketch10.addConstraint(Sketcher.Constraint("Horizontal", 10))
sketch10.addConstraint(Sketcher.Constraint("Vertical", 11))
sketch10.addConstraint(Sketcher.Constraint("Horizontal", 12))
sketch10.addConstraint(Sketcher.Constraint("Vertical", 13))
sketch10.addConstraint(Sketcher.Constraint("Horizontal", 14))
sketch10.addConstraint(Sketcher.Constraint("Vertical", 15))
sketch10.addConstraint(Sketcher.Constraint("Horizontal", 16))
sketch10.addConstraint(Sketcher.Constraint("Vertical", 17))
sketch10.addConstraint(Sketcher.Constraint("Horizontal", 18))
sketch10.addConstraint(Sketcher.Constraint("Vertical", 19))
sketch10.addConstraint(Sketcher.Constraint("Horizontal", 20))
sketch10.addConstraint(Sketcher.Constraint("Vertical", 21))
sketch10.addConstraint(Sketcher.Constraint("Horizontal", 22))
sketch10.addConstraint(Sketcher.Constraint("Vertical", 23))
sketch10.addConstraint(Sketcher.Constraint("Horizontal", 24))
sketch10.addConstraint(Sketcher.Constraint("Vertical", 25))
sketch10.addConstraint(Sketcher.Constraint("Horizontal", 26))
sketch10.addConstraint(Sketcher.Constraint("Vertical", 27))
sketch10.addConstraint(Sketcher.Constraint("Horizontal", 28))
sketch10.addConstraint(Sketcher.Constraint("Vertical", 29))
sketch10.addConstraint(Sketcher.Constraint("Horizontal", 30))
sketch10.addConstraint(Sketcher.Constraint("Vertical", 31))
sketch10.addConstraint(Sketcher.Constraint("Horizontal", 32))
sketch10.addConstraint(Sketcher.Constraint("Vertical", 33))
sketch10.addConstraint(Sketcher.Constraint("Horizontal", 34))
sketch10.addConstraint(Sketcher.Constraint("Vertical", 35))
sketch10.addConstraint(Sketcher.Constraint("Horizontal", 36))
sketch10.addConstraint(Sketcher.Constraint("Vertical", 37))
sketch10.addConstraint(Sketcher.Constraint("Horizontal", 38))
sketch10.addConstraint(Sketcher.Constraint("Vertical", 39))
sketch10.addConstraint(Sketcher.Constraint("Vertical", 1, 2, 4, 2))
sketch10.addConstraint(Sketcher.Constraint("Vertical", 3, 2, 6, 2))
sketch10.addConstraint(Sketcher.Constraint("Vertical", 5, 2, 8, 2))
sketch10.addConstraint(Sketcher.Constraint("Vertical", 7, 2, 10, 2))
sketch10.addConstraint(Sketcher.Constraint("Vertical", 9, 2, 12, 2))
sketch10.addConstraint(Sketcher.Constraint("Vertical", 11, 2, 14, 2))
sketch10.addConstraint(Sketcher.Constraint("Vertical", 13, 2, 16, 2))
sketch10.addConstraint(Sketcher.Constraint("Vertical", 15, 2, 18, 2))
sketch10.addConstraint(Sketcher.Constraint("Vertical", 17, 2, 20, 2))
sketch10.addConstraint(Sketcher.Constraint("Vertical", 19, 2, 22, 2))
sketch10.addConstraint(Sketcher.Constraint("Vertical", 21, 2, 24, 2))
sketch10.addConstraint(Sketcher.Constraint("Vertical", 23, 2, 26, 2))
sketch10.addConstraint(Sketcher.Constraint("Vertical", 25, 2, 28, 2))
sketch10.addConstraint(Sketcher.Constraint("Vertical", 27, 2, 30, 2))
sketch10.addConstraint(Sketcher.Constraint("Vertical", 29, 2, 32, 2))
sketch10.addConstraint(Sketcher.Constraint("Vertical", 31, 2, 34, 2))
sketch10.addConstraint(Sketcher.Constraint("Vertical", 33, 2, 36, 2))
sketch10.addConstraint(Sketcher.Constraint("Vertical", 35, 2, 38, 2))
sketch10.addConstraint(Sketcher.Constraint("Equal", 3, 5))
sketch10.addConstraint(Sketcher.Constraint("Equal", 7, 9))
sketch10.addConstraint(Sketcher.Constraint("Equal", 11, 13))
sketch10.addConstraint(Sketcher.Constraint("Equal", 15, 17))
sketch10.addConstraint(Sketcher.Constraint("Equal", 19, 21))
sketch10.addConstraint(Sketcher.Constraint("Equal", 23, 25))
sketch10.addConstraint(Sketcher.Constraint("Equal", 27, 29))
sketch10.addConstraint(Sketcher.Constraint("Equal", 31, 33))
sketch10.addConstraint(Sketcher.Constraint("Equal", 35, 37))
sketch10.addConstraint(Sketcher.Constraint("DistanceX", 0, 2, 0, 1, Q("33 mm")))
sketch10.addConstraint(Sketcher.Constraint("DistanceX", -1, 1, 0, 2, Q("4 mm")))
sketch10.addConstraint(Sketcher.Constraint("DistanceY", 4, 2, 0, 2, Q("7 mm")))
sketch10.addConstraint(Sketcher.Constraint("DistanceY", 8, 2, 4, 2, Q("7 mm")))
sketch10.addConstraint(Sketcher.Constraint("DistanceY", 12, 2, 8, 2, Q("7 mm")))
sketch10.addConstraint(Sketcher.Constraint("DistanceY", 16, 2, 12, 2, Q("7 mm")))
sketch10.addConstraint(Sketcher.Constraint("DistanceY", 20, 2, 16, 2, Q("7 mm")))
sketch10.addConstraint(Sketcher.Constraint("DistanceY", 24, 2, 20, 2, Q("7 mm")))
sketch10.addConstraint(Sketcher.Constraint("DistanceY", 28, 2, 24, 2, Q("7 mm")))
sketch10.addConstraint(Sketcher.Constraint("DistanceY", 32, 2, 28, 2, Q("7 mm")))
sketch10.addConstraint(Sketcher.Constraint("DistanceY", 36, 2, 32, 2, Q("7 mm")))
sketch10.addConstraint(Sketcher.Constraint("DistanceY", 1, 2, 1, 1, Q("4.408391 mm")))
sketch10.addConstraint(Sketcher.Constraint("DistanceY", -1, 1, 1, 2, Q("50.275561 mm")))
pocket6 = body.newObject("PartDesign::Pocket", "Pocket005")
pocket6.Profile = sketch10
pocket6.Length = 3

# Sketch on XY plane
sketch11 = body.newObject("Sketcher::SketchObject", "Sketch010")
sketch11.AttachmentSupport = (doc.getObject("XY_Plane"), [""])
sketch11.MapMode = "FlatFace"
sketch11.AttachmentOffset = App.Placement(Vector(0, 0, -25.196629), App.Rotation())
sketch11.addGeometry(Part.Circle(Vector(-79.414793, 31.5, 0), Vector(0, 0, 1), 5), False)
sketch11.addConstraint(Sketcher.Constraint("Diameter", 0, Q("10 mm")))
sketch11.addConstraint(Sketcher.Constraint("DistanceY", -1, 1, 0, 3, Q("31.5 mm")))
sketch11.addConstraint(Sketcher.Constraint("DistanceX", 0, 3, -1, 1, Q("79.414793 mm")))
pocket7 = body.newObject("PartDesign::Pocket", "Pocket006")
pocket7.Profile = sketch11
pocket7.Length = 10
pocket7.Reversed = True

# Sketch on YZ plane
sketch12 = body.newObject("Sketcher::SketchObject", "Sketch011")
sketch12.AttachmentSupport = (doc.getObject("YZ_Plane"), [""])
sketch12.MapMode = "FlatFace"
sketch12.AttachmentOffset = App.Placement(Vector(0, 0, -102.679775), App.Rotation())
add_polygon(sketch12, [(34.335931, 99.53268), (29.335931, 99.53268), (29.335931, 109.53268), (34.335931, 109.53268)])  # lines 0-3
sketch12.addConstraint(Sketcher.Constraint("Horizontal", 0))
sketch12.addConstraint(Sketcher.Constraint("Vertical", 1))
sketch12.addConstraint(Sketcher.Constraint("Horizontal", 2))
sketch12.addConstraint(Sketcher.Constraint("Vertical", 3))
sketch12.addConstraint(Sketcher.Constraint("DistanceX", 0, 2, 0, 1, Q("5 mm")))
sketch12.addConstraint(Sketcher.Constraint("DistanceY", 1, 1, 1, 2, Q("10 mm")))
sketch12.addConstraint(Sketcher.Constraint("DistanceX", -1, 1, 0, 2, Q("29.335931 mm")))
sketch12.addConstraint(Sketcher.Constraint("DistanceY", -1, 1, 0, 2, Q("99.53268 mm")))
pocket8 = body.newObject("PartDesign::Pocket", "Pocket007")
pocket8.Profile = sketch12
pocket8.Length = 10
pocket8.Reversed = True

# Sketch on XZ plane
sketch13 = body.newObject("Sketcher::SketchObject", "Sketch012")
sketch13.AttachmentSupport = (doc.getObject("XZ_Plane"), [""])
sketch13.MapMode = "FlatFace"
sketch13.AttachmentOffset = App.Placement(Vector(0, 0, -2), App.Rotation())
sketch13.addGeometry(Part.Circle(Vector(-30.684103, 116.803371, 0), Vector(0, 0, 1), 1), False)
sketch13.addGeometry(Part.Circle(Vector(49.320225, 116.803371, 0), Vector(0, 0, 1), 1), False)
sketch13.addConstraint(Sketcher.Constraint("Equal", 0, 1))
sketch13.addConstraint(Sketcher.Constraint("Horizontal", 0, 3, 1, 3))
sketch13.addConstraint(Sketcher.Constraint("Diameter", 0, Q("2 mm")))
sketch13.addConstraint(Sketcher.Constraint("DistanceY", -1, 1, 0, 3, Q("116.803371 mm")))
sketch13.addConstraint(Sketcher.Constraint("DistanceX", 0, 3, -1, 1, Q("30.684103 mm")))
sketch13.addConstraint(Sketcher.Constraint("DistanceX", -1, 1, 1, 3, Q("49.320225 mm")))
pocket9 = body.newObject("PartDesign::Pocket", "Pocket008")
pocket9.Profile = sketch13
pocket9.Length = 10

doc.recompute()
